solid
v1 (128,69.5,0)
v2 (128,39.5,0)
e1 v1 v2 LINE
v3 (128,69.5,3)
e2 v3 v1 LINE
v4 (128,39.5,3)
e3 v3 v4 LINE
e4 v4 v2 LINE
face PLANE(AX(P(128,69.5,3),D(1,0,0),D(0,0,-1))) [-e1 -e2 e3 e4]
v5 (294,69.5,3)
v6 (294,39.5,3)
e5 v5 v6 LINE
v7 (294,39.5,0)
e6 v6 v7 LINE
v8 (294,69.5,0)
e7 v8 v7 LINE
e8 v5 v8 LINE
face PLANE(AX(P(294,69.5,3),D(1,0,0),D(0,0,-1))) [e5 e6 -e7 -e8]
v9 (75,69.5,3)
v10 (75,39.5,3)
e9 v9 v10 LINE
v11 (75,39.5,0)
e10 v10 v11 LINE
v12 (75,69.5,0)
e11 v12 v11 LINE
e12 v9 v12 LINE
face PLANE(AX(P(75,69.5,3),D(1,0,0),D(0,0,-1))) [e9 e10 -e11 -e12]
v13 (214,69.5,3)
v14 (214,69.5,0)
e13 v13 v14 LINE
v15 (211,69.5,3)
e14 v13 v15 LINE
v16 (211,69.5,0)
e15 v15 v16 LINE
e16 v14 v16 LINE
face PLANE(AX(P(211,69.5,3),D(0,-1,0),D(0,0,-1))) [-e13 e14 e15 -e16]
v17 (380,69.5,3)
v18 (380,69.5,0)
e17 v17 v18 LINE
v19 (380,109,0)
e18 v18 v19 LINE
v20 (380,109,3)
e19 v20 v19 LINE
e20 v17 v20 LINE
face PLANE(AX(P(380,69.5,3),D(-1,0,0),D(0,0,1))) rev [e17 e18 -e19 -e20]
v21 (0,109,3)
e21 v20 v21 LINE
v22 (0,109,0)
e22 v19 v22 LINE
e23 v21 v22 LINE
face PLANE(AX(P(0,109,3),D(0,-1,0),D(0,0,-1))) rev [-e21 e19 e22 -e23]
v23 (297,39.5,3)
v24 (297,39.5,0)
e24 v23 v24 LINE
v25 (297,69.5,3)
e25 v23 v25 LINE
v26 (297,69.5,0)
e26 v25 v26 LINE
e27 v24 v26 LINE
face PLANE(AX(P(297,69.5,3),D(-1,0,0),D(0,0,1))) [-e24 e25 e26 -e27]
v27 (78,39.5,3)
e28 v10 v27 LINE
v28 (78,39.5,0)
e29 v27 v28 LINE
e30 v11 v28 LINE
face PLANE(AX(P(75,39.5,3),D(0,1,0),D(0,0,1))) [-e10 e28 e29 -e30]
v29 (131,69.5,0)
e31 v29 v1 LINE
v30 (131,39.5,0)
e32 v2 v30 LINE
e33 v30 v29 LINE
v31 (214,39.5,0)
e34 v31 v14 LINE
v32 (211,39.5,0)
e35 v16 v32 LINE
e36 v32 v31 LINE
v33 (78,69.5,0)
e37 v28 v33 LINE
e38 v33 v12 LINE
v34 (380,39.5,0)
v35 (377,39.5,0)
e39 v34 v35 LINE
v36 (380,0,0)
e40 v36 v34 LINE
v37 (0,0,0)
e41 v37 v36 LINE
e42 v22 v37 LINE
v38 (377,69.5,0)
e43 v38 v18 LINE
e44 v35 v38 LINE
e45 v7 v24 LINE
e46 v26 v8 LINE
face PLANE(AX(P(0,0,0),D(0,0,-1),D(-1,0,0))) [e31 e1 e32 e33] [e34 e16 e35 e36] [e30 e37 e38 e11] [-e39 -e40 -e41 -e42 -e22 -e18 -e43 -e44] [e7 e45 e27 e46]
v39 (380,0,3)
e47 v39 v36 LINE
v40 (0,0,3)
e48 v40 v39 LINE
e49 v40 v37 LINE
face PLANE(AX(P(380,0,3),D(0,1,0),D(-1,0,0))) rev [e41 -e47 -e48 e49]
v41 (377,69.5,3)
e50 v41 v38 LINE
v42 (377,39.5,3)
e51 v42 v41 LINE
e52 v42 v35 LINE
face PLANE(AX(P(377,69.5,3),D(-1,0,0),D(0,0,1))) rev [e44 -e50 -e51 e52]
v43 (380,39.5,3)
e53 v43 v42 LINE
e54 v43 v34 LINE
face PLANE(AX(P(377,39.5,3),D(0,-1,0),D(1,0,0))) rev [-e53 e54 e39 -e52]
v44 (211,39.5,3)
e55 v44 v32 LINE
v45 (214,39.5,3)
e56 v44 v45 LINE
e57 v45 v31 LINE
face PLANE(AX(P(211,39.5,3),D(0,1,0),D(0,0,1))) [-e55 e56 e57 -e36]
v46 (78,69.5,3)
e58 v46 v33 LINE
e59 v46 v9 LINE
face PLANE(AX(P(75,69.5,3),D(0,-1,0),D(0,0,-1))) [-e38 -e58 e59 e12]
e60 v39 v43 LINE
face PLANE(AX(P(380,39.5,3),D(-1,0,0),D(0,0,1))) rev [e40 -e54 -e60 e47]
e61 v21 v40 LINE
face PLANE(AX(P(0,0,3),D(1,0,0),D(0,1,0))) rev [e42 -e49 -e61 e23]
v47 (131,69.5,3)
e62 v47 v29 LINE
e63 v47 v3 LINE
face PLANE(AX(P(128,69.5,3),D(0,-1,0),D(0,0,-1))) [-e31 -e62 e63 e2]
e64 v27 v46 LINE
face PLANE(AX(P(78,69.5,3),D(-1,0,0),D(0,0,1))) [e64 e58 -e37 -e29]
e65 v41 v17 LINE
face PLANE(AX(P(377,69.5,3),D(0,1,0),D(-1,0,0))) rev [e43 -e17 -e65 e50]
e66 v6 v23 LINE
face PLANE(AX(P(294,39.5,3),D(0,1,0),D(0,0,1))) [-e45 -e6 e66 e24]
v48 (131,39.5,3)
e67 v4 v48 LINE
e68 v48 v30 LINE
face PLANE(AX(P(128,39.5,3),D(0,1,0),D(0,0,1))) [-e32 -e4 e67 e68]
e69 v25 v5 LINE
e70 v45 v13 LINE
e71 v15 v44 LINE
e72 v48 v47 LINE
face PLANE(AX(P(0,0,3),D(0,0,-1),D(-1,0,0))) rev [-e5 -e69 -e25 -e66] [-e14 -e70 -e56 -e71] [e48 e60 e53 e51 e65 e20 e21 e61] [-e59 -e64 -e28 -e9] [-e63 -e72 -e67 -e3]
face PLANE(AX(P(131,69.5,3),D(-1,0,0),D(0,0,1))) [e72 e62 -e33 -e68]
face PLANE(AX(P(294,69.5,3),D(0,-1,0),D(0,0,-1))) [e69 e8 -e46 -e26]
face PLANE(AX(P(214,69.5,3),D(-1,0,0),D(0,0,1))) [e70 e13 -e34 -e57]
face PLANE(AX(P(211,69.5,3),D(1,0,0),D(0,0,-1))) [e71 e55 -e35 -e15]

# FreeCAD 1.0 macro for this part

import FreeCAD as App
import Part
import Sketcher


def add_polygon(sketch, points):
    """Adds a closed chain of lines whose ends are joined by coincident constraints."""
    first, n = sketch.GeometryCount, len(points)
    for a, b in zip(points, points[1:] + points[:1]):
        sketch.addGeometry(Part.LineSegment(App.Vector(*a, 0), App.Vector(*b, 0)), False)
    for i in range(n):
        sketch.addConstraint(Sketcher.Constraint("Coincident", first + i, 2, first + (i + 1) % n, 1))

doc = App.newDocument("Part")
params = doc.addObject("Spreadsheet::Sheet", "Params")
for row, (alias, value) in enumerate([
    ("sketch1_width", "380 mm"),
    ("sketch1_width2", "3 mm"),
    ("sketch1_height", "109 mm"),
    ("sketch1_height2", "30 mm"),
    ("pad1_length", "3 mm"),
], start=1):
    params.set(f"A{row}", alias)
    params.set(f"B{row}", "=" + value)
    params.setAlias(f"B{row}", alias)

body = doc.addObject("PartDesign::Body", "Body")

# Sketch on XY plane
sketch1 = doc.addObject("Sketcher::SketchObject", "Sketch")
body.addObject(sketch1)
sketch1.AttachmentSupport = (doc.XY_Plane, [""])
sketch1.MapMode = "FlatFace"
add_polygon(sketch1, [(380, 109), (0, 109), (0, 0), (380, 0), (380, 39.5), (377, 39.5), (377, 69.5), (380, 69.5)])  # lines 0-7
add_polygon(sketch1, [(78, 39.5), (75, 39.5), (75, 69.5), (78, 69.5)])  # lines 8-11
add_polygon(sketch1, [(131, 39.5), (128, 39.5), (128, 69.5), (131, 69.5)])  # lines 12-15
add_polygon(sketch1, [(214, 39.5), (211, 39.5), (211, 69.5), (214, 69.5)])  # lines 16-19
add_polygon(sketch1, [(297, 39.5), (294, 39.5), (294, 69.5), (297, 69.5)])  # lines 20-23
sketch1.addConstraint(Sketcher.Constraint("Horizontal", 0))
sketch1.addConstraint(Sketcher.Constraint("Vertical", 1))
sketch1.addConstraint(Sketcher.Constraint("Horizontal", 2))
sketch1.addConstraint(Sketcher.Constraint("Vertical", 3))
sketch1.addConstraint(Sketcher.Constraint("Horizontal", 4))
sketch1.addConstraint(Sketcher.Constraint("Vertical", 5))
sketch1.addConstraint(Sketcher.Constraint("Horizontal", 6))
sketch1.addConstraint(Sketcher.Constraint("Vertical", 7))
sketch1.addConstraint(Sketcher.Constraint("Horizontal", 8))
sketch1.addConstraint(Sketcher.Constraint("Vertical", 9))
sketch1.addConstraint(Sketcher.Constraint("Horizontal", 10))
sketch1.addConstraint(Sketcher.Constraint("Vertical", 11))
sketch1.addConstraint(Sketcher.Constraint("Horizontal", 12))
sketch1.addConstraint(Sketcher.Constraint("Vertical", 13))
sketch1.addConstraint(Sketcher.Constraint("Horizontal", 14))
sketch1.addConstraint(Sketcher.Constraint("Vertical", 15))
sketch1.addConstraint(Sketcher.Constraint("Horizontal", 16))
sketch1.addConstraint(Sketcher.Constraint("Vertical", 17))
sketch1.addConstraint(Sketcher.Constraint("Horizontal", 18))
sketch1.addConstraint(Sketcher.Constraint("Vertical", 19))
sketch1.addConstraint(Sketcher.Constraint("Horizontal", 20))
sketch1.addConstraint(Sketcher.Constraint("Vertical", 21))
sketch1.addConstraint(Sketcher.Constraint("Horizontal", 22))
sketch1.addConstraint(Sketcher.Constraint("Vertical", 23))
sketch1.addConstraint(Sketcher.Constraint("Coincident", 1, 2, -1, 1))
sketch1.addConstraint(Sketcher.Constraint("Horizontal", 4, 2, 8, 2))
sketch1.addConstraint(Sketcher.Constraint("Horizontal", 6, 2, 9, 2))
sketch1.addConstraint(Sketcher.Constraint("Horizontal", 11, 2, 12, 2))
sketch1.addConstraint(Sketcher.Constraint("Horizontal", 10, 2, 13, 2))
sketch1.addConstraint(Sketcher.Constraint("Horizontal", 15, 2, 16, 2))
sketch1.addConstraint(Sketcher.Constraint("Horizontal", 14, 2, 17, 2))
sketch1.addConstraint(Sketcher.Constraint("Horizontal", 19, 2, 20, 2))
sketch1.addConstraint(Sketcher.Constraint("Horizontal", 18, 2, 21, 2))
sketch1.addConstraint(Sketcher.Constraint("Vertical", 3, 2, 6, 2))
sketch1.addConstraint(Sketcher.Constraint("Equal", 6, 8))
sketch1.addConstraint(Sketcher.Constraint("Equal", 10, 12))
sketch1.addConstraint(Sketcher.Constraint("Equal", 14, 16))
sketch1.addConstraint(Sketcher.Constraint("Equal", 18, 20))
sketch1.addConstraint(Sketcher.Constraint("Equal", 3, 7))
sketch1.addConstraint(Sketcher.Constraint("DistanceX", 0, 2, 0, 1, 380.0))
sketch1.addConstraint(Sketcher.Constraint("DistanceX", 4, 2, 4, 1, 3.0))
sketch1.addConstraint(Sketcher.Constraint("DistanceY", 1, 2, 1, 1, 109.0))
sketch1.addConstraint(Sketcher.Constraint("DistanceY", 5, 1, 5, 2, 30.0))
sketch1.addConstraint(Sketcher.Constraint("DistanceX", -1, 1, 8, 2, 75.0))
sketch1.addConstraint(Sketcher.Constraint("DistanceX", -1, 1, 12, 2, 128.0))
sketch1.addConstraint(Sketcher.Constraint("DistanceX", -1, 1, 16, 2, 211.0))
sketch1.addConstraint(Sketcher.Constraint("DistanceX", -1, 1, 20, 2, 294.0))
sketch1.setExpression("Constraints[63]", "Params.sketch1_width")
sketch1.setExpression("Constraints[64]", "Params.sketch1_width2")
sketch1.setExpression("Constraints[65]", "Params.sketch1_height")
sketch1.setExpression("Constraints[66]", "Params.sketch1_height2")
pad1 = doc.addObject("PartDesign::Pad", "Pad")
body.addObject(pad1)
pad1.Profile = sketch1
pad1.setExpression("Length", "Params.pad1_length")

doc.recompute()
